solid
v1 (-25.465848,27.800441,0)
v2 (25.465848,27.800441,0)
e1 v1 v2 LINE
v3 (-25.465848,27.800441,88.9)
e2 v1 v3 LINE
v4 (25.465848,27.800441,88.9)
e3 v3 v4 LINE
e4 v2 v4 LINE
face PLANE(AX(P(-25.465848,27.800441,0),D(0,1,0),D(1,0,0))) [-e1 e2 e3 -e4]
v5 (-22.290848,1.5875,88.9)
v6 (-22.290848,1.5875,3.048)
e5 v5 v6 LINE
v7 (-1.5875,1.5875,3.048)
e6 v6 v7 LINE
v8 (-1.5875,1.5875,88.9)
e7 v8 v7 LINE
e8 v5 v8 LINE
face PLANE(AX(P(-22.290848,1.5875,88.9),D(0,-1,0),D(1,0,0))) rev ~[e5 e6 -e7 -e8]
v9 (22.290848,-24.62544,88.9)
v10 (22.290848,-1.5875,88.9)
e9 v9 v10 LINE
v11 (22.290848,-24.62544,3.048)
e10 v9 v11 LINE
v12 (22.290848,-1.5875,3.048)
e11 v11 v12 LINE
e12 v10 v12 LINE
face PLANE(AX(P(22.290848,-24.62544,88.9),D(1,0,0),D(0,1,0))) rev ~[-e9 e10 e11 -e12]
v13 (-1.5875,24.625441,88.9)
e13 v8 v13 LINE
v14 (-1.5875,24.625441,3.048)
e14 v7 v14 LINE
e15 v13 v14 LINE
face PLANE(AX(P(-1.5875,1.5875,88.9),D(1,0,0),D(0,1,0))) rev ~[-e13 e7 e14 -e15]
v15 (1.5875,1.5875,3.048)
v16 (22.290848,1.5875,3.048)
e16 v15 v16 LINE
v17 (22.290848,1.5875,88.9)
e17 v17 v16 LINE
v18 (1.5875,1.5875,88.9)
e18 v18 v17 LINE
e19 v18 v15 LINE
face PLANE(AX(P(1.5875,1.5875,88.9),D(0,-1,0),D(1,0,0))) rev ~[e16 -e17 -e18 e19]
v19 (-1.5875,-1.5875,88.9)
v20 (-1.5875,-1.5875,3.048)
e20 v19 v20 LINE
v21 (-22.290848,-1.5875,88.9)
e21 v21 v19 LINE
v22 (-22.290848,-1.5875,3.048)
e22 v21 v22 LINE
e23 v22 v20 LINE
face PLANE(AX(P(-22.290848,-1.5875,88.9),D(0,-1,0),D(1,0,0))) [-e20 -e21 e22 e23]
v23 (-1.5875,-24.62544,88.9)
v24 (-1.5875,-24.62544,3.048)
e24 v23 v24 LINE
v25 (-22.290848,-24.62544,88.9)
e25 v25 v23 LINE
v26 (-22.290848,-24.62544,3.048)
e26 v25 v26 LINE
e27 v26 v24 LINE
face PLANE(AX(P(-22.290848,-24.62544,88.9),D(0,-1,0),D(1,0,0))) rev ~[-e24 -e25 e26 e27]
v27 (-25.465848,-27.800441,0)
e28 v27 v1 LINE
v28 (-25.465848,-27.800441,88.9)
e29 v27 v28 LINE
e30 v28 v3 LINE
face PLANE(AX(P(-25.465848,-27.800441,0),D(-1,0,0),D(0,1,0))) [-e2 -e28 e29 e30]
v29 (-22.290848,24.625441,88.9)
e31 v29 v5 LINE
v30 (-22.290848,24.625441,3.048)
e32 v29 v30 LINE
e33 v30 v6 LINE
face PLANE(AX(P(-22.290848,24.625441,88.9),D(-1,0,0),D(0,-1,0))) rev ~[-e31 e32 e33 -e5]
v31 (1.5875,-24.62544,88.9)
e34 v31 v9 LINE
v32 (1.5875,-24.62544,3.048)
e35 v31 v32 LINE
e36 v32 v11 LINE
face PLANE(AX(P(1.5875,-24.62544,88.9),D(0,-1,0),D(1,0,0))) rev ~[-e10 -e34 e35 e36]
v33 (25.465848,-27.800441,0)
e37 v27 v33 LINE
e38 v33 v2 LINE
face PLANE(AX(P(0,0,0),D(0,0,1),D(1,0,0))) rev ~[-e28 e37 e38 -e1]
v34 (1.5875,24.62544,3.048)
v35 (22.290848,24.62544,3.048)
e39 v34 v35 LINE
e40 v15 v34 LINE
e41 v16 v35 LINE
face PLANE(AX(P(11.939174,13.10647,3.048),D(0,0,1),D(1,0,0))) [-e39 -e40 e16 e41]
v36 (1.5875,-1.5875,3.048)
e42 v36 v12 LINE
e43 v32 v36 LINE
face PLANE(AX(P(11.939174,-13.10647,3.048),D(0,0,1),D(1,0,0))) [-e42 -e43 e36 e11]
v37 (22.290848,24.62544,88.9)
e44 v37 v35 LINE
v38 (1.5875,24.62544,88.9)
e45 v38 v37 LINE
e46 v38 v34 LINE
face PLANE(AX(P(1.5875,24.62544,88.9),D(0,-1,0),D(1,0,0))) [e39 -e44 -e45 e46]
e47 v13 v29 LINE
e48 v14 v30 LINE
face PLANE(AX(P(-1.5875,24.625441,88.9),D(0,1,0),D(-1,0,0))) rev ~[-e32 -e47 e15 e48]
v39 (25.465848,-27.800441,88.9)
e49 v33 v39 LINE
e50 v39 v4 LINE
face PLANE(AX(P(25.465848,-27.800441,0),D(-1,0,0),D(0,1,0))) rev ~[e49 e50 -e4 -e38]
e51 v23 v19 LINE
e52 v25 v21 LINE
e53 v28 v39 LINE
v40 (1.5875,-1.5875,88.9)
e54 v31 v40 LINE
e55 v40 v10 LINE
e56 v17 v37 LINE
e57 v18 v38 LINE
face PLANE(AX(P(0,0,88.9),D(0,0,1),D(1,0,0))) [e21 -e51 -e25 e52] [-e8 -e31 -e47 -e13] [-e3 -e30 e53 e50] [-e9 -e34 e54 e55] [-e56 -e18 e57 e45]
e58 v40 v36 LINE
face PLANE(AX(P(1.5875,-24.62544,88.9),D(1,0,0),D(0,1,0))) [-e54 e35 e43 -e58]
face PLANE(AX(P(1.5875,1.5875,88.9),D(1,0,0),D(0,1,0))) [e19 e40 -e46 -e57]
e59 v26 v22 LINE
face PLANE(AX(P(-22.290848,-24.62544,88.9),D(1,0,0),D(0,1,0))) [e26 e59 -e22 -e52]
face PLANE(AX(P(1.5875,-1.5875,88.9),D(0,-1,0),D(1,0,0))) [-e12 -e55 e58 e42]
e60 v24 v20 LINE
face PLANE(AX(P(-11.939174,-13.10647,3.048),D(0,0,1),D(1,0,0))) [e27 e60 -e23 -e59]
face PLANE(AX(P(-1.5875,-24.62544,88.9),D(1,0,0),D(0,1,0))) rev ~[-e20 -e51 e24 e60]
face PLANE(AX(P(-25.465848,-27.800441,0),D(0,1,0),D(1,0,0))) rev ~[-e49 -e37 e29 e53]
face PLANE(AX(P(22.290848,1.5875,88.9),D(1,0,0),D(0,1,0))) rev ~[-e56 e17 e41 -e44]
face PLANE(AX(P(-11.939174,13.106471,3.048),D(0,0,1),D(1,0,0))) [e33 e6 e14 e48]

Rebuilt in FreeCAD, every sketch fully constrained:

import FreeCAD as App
import Part
import Sketcher
Q = App.Units.Quantity


def add_polygon(sketch, points):
    """Adds a closed chain of lines whose ends are joined by coincident constraints."""
    first, n = sketch.GeometryCount, len(points)
    for a, b in zip(points, points[1:] + points[:1]):
        sketch.addGeometry(Part.LineSegment(App.Vector(*a, 0), App.Vector(*b, 0)), False)
    for i in range(n):
        sketch.addConstraint(Sketcher.Constraint("Coincident", first + i, 2, first + (i + 1) % n, 1))

doc = App.newDocument("Part")
params = doc.addObject("Spreadsheet::Sheet", "Params")
for row, (alias, value) in enumerate([
    ("pad1_length", "3.5 in"),
    ("pocket1_length", "3.38 in"),
], start=1):
    params.set(f"A{row}", alias)
    params.set(f"B{row}", "=" + value)
    params.setAlias(f"B{row}", alias)

body = doc.addObject("PartDesign::Body", "Body")

# Sketch on XY plane
sketch1 = doc.addObject("Sketcher::SketchObject", "Sketch")
body.addObject(sketch1)
sketch1.AttachmentSupport = (doc.XY_Plane, [""])
sketch1.MapMode = "FlatFace"
add_polygon(sketch1, [(-25, 28), (-25, -28), (25, -28), (25, 28)])  # lines 0-3
sketch1.addConstraint(Sketcher.Constraint("Vertical", 0))
sketch1.addConstraint(Sketcher.Constraint("Horizontal", 1))
sketch1.addConstraint(Sketcher.Constraint("Vertical", 2))
sketch1.addConstraint(Sketcher.Constraint("Horizontal", 3))
sketch1.addConstraint(Sketcher.Constraint("Symmetric", 0, 2, 2, 2, -1, 1))
sketch1.addConstraint(Sketcher.Constraint("DistanceX", 1, 1, 1, 2, Q("50.931696 mm")))
sketch1.addConstraint(Sketcher.Constraint("DistanceY", 0, 2, 0, 1, Q("55.600882 mm")))
pad1 = doc.addObject("PartDesign::Pad", "Pad")
body.addObject(pad1)
pad1.Profile = sketch1
pad1.setExpression("Length", "Params.pad1_length")

# Sketch on XY plane
sketch2 = doc.addObject("Sketcher::SketchObject", "Sketch001")
body.addObject(sketch2)
sketch2.AttachmentSupport = (doc.XY_Plane, [""])
sketch2.MapMode = "FlatFace"
sketch2.AttachmentOffset = App.Placement(App.Vector(0, 0, 3.5 * 25.4), App.Rotation())
add_polygon(sketch2, [(-22, 2), (-2, 2), (-2, 25), (-22, 25)])  # lines 0-3
add_polygon(sketch2, [(-22, -2), (-22, -25), (-2, -25), (-2, -2)])  # lines 4-7
add_polygon(sketch2, [(2, -2), (2, -25), (22, -25), (22, -2)])  # lines 8-11
add_polygon(sketch2, [(2, 25), (2, 2), (22, 2), (22, 25)])  # lines 12-15
sketch2.addConstraint(Sketcher.Constraint("Horizontal", 0))
sketch2.addConstraint(Sketcher.Constraint("Vertical", 1))
sketch2.addConstraint(Sketcher.Constraint("Horizontal", 2))
sketch2.addConstraint(Sketcher.Constraint("Vertical", 3))
sketch2.addConstraint(Sketcher.Constraint("Vertical", 4))
sketch2.addConstraint(Sketcher.Constraint("Horizontal", 5))
sketch2.addConstraint(Sketcher.Constraint("Vertical", 6))
sketch2.addConstraint(Sketcher.Constraint("Horizontal", 7))
sketch2.addConstraint(Sketcher.Constraint("Vertical", 8))
sketch2.addConstraint(Sketcher.Constraint("Horizontal", 9))
sketch2.addConstraint(Sketcher.Constraint("Vertical", 10))
sketch2.addConstraint(Sketcher.Constraint("Horizontal", 11))
sketch2.addConstraint(Sketcher.Constraint("Vertical", 12))
sketch2.addConstraint(Sketcher.Constraint("Horizontal", 13))
sketch2.addConstraint(Sketcher.Constraint("Vertical", 14))
sketch2.addConstraint(Sketcher.Constraint("Horizontal", 15))
sketch2.addConstraint(Sketcher.Constraint("Symmetric", 1, 2, 8, 2, -1, 1))
sketch2.addConstraint(Sketcher.Constraint("Symmetric", 3, 2, 10, 2, -1, 1))
sketch2.addConstraint(Sketcher.Constraint("Symmetric", 6, 2, 12, 2, -1, 1))
sketch2.addConstraint(Sketcher.Constraint("Symmetric", 4, 2, 14, 2, -1, 1))
sketch2.addConstraint(Sketcher.Constraint("Symmetric", 5, 2, 8, 2, -2))
sketch2.addConstraint(Sketcher.Constraint("Symmetric", 7, 2, 10, 2, -2))
sketch2.addConstraint(Sketcher.Constraint("DistanceX", 0, 2, -1, 1, Q("0.0625 in")))
sketch2.addConstraint(Sketcher.Constraint("DistanceY", -1, 1, 0, 2, Q("0.0625 in")))
sketch2.addConstraint(Sketcher.Constraint("DistanceX", 0, 1, 0, 2, Q("20.703348 mm")))
sketch2.addConstraint(Sketcher.Constraint("DistanceY", 1, 1, 1, 2, Q("23.037941 mm")))
pocket1 = doc.addObject("PartDesign::Pocket", "Pocket")
body.addObject(pocket1)
pocket1.Profile = sketch2
pocket1.setExpression("Length", "Params.pocket1_length")

doc.recompute()
